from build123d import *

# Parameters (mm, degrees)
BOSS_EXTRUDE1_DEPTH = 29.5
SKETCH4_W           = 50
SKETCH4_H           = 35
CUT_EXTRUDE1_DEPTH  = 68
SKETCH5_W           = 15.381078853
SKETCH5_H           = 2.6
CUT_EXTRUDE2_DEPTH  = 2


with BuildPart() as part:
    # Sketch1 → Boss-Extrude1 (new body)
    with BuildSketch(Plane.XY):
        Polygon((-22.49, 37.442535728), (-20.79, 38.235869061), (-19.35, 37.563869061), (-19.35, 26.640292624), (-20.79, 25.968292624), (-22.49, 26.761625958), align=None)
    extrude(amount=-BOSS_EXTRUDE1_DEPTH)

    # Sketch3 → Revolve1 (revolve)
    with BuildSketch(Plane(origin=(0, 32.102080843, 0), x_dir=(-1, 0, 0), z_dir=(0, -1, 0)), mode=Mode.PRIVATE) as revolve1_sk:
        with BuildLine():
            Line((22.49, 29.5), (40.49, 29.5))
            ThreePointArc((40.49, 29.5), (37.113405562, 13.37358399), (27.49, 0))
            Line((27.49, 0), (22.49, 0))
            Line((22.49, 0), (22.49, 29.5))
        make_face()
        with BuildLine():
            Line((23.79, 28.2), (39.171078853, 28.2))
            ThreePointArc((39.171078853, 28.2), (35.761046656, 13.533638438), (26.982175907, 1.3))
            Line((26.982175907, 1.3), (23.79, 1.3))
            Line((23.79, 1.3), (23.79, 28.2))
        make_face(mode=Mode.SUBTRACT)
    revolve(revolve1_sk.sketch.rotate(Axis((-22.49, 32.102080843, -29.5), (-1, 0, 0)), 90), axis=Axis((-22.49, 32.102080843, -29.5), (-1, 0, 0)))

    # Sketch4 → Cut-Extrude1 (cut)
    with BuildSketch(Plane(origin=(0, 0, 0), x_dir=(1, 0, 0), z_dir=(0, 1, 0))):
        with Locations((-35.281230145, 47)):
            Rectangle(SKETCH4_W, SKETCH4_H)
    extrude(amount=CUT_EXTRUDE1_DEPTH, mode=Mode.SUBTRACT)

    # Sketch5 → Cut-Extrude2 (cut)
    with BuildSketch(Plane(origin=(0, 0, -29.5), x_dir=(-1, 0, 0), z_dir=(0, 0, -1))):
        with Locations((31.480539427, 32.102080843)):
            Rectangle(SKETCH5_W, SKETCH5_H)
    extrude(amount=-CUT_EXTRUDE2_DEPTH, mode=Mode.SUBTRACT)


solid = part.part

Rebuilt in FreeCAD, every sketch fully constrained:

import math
import FreeCAD as App
import Part
import Sketcher
Q = App.Units.Quantity


def add_polygon(sketch, points):
    """Adds a closed chain of lines whose ends are joined by coincident constraints."""
    first, n = sketch.GeometryCount, len(points)
    for a, b in zip(points, points[1:] + points[:1]):
        sketch.addGeometry(Part.LineSegment(App.Vector(*a, 0), App.Vector(*b, 0)), False)
    for i in range(n):
        sketch.addConstraint(Sketcher.Constraint("Coincident", first + i, 2, first + (i + 1) % n, 1))

doc = App.newDocument("Part")
params = doc.addObject("Spreadsheet::Sheet", "Params")
for row, (alias, value) in enumerate([
    ("pad1_length", "29.5 mm"),
    ("sketch2_width", "18 mm"),
    ("sketch2_width2", "5 mm"),
    ("sketch2_height", "29.5 mm"),
    ("sketch2_height2", "26.9 mm"),
    ("revolution_angle", "360 deg"),
    ("sketch3_width", "50 mm"),
    ("sketch3_height", "35 mm"),
    ("pocket1_length", "68 mm"),
    ("sketch4_height", "2.6 mm"),
    ("pocket2_length", "2 mm"),
], start=1):
    params.set(f"A{row}", alias)
    params.set(f"B{row}", "=" + value)
    params.setAlias(f"B{row}", alias)

body = doc.addObject("PartDesign::Body", "Body")

# Sketch on XY plane
sketch1 = body.newObject("Sketcher::SketchObject", "Sketch")
sketch1.AttachmentSupport = (doc.getObject("XY_Plane"), [""])
sketch1.MapMode = "FlatFace"
add_polygon(sketch1, [(-20.8, 38.2), (-22.5, 37.4), (-22.5, 26.8), (-20.8, 26), (-19.4, 26.6), (-19.4, 37.6)])  # lines 0-5
sketch1.addConstraint([
    Sketcher.Constraint("Vertical", 1),
    Sketcher.Constraint("Vertical", 4),
    Sketcher.Constraint("Parallel", 0, 3),
    Sketcher.Constraint("Parallel", 2, 5),
    Sketcher.Constraint("Vertical", 2, 2, 5, 2),
    Sketcher.Constraint("Equal", 0, 2),
    Sketcher.Constraint("DistanceX", 1, 2, 2, 2, Q("1.7 mm")),
    Sketcher.Constraint("DistanceX", 0, 2, -1, 1, Q("22.49 mm")),
    Sketcher.Constraint("DistanceX", 3, 2, -1, 1, Q("19.35 mm")),
    Sketcher.Constraint("Distance", 0, Q("1.876 mm")),
    Sketcher.Constraint("DistanceY", 1, 2, 1, 1, Q("10.68091 mm")),
    Sketcher.Constraint("DistanceY", -1, 1, 4, 2, Q("37.563869 mm")),
])
pad1 = body.newObject("PartDesign::Pad", "Pad")
pad1.Profile = sketch1
pad1.setExpression("Length", "Params.pad1_length")
pad1.Reversed = True

# Sketch on XZ plane
sketch2 = body.newObject("Sketcher::SketchObject", "Sketch001")
sketch2.AttachmentSupport = (doc.getObject("XZ_Plane"), [""])
sketch2.MapMode = "FlatFace"
sketch2.AttachmentOffset = App.Placement(App.Vector(0, 0, -32.102081), App.Rotation())
sketch2.addGeometry([
    Part.LineSegment(App.Vector(-40.5, -29.5, 0), App.Vector(-22.5, -29.5, 0)),  # 0
    Part.LineSegment(App.Vector(-22.5, -29.5, 0), App.Vector(-22.5, 0, 0)),  # 1
    Part.LineSegment(App.Vector(-22.5, 0, 0), App.Vector(-27.5, 0, 0)),  # 2
    Part.ArcOfCircle(Part.Circle(App.Vector(-0.7, -29.4, 0), App.Vector(0, 0, 1), 39.8), math.radians(132), math.radians(180)),  # 3
    Part.LineSegment(App.Vector(-23.8, -28.2, 0), App.Vector(-39.2, -28.2, 0)),  # 4
    Part.ArcOfCircle(Part.Circle(App.Vector(-0.7, -29.4, 0), App.Vector(0, 0, 1), 38.5), math.radians(133), math.radians(178)),  # 5
    Part.LineSegment(App.Vector(-27, -1.3, 0), App.Vector(-23.8, -1.3, 0)),  # 6
    Part.LineSegment(App.Vector(-23.8, -1.3, 0), App.Vector(-23.8, -28.2, 0)),  # 7
], False)
sketch2.addGeometry(Part.LineSegment(App.Vector(-0.7, -29.5, 0), App.Vector(-40.5, -29.5, 0)), True)  # axis
sketch2.addConstraint([
    Sketcher.Constraint("Coincident", 0, 2, 1, 1),
    Sketcher.Constraint("Coincident", 1, 2, 2, 1),
    Sketcher.Constraint("Coincident", 2, 2, 3, 1),
    Sketcher.Constraint("Coincident", 3, 2, 0, 1),
    Sketcher.Constraint("Coincident", 4, 2, 5, 2),
    Sketcher.Constraint("Coincident", 5, 1, 6, 1),
    Sketcher.Constraint("Coincident", 6, 2, 7, 1),
    Sketcher.Constraint("Coincident", 7, 2, 4, 1),
    Sketcher.Constraint("Horizontal", 0),
    Sketcher.Constraint("Vertical", 1),
    Sketcher.Constraint("Horizontal", 2),
    Sketcher.Constraint("Horizontal", 4),
    Sketcher.Constraint("Horizontal", 6),
    Sketcher.Constraint("Vertical", 7),
    Sketcher.Constraint("Horizontal", 8),
    Sketcher.Constraint("Coincident", 5, 3, 3, 3),
    Sketcher.Constraint("Coincident", 8, 2, 3, 2),
    Sketcher.Constraint("PointOnObject", 1, 2, -1),
    Sketcher.Constraint("Vertical", 5, 3, 8, 1),
    Sketcher.Constraint("DistanceX", 0, 1, 0, 2, Q("18 mm")),
    Sketcher.Constraint("DistanceX", 2, 2, 2, 1, Q("5 mm")),
    Sketcher.Constraint("DistanceY", 1, 1, 1, 2, Q("29.5 mm")),
    Sketcher.Constraint("DistanceY", 7, 2, 7, 1, Q("26.9 mm")),
    Sketcher.Constraint("DistanceY", 4, 2, -1, 1, Q("28.2 mm")),
    Sketcher.Constraint("DistanceX", 6, 2, 1, 2, Q("1.3 mm")),
    Sketcher.Constraint("DistanceX", 0, 2, -1, 1, Q("22.49 mm")),
    Sketcher.Constraint("Radius", 3, Q("39.76617 mm")),
    Sketcher.Constraint("Radius", 5, Q("38.46617 mm")),
])
sketch2.setExpression("Constraints[19]", "Params.sketch2_width")
sketch2.setExpression("Constraints[20]", "Params.sketch2_width2")
sketch2.setExpression("Constraints[21]", "Params.sketch2_height")
sketch2.setExpression("Constraints[22]", "Params.sketch2_height2")
revolution = body.newObject("PartDesign::Revolution", "Revolution")
revolution.Profile = sketch2
revolution.ReferenceAxis = (sketch2, ["Axis0"])
revolution.setExpression("Angle", "Params.revolution_angle")

# Sketch on XZ plane
sketch3 = body.newObject("Sketcher::SketchObject", "Sketch002")
sketch3.AttachmentSupport = (doc.getObject("XZ_Plane"), [""])
sketch3.MapMode = "FlatFace"
add_polygon(sketch3, [(-60, -64), (-60, -30), (-10, -30), (-10, -64)])  # lines 0-3
sketch3.addConstraint([
    Sketcher.Constraint("Vertical", 0),
    Sketcher.Constraint("Horizontal", 1),
    Sketcher.Constraint("Vertical", 2),
    Sketcher.Constraint("Horizontal", 3),
    Sketcher.Constraint("DistanceX", 1, 1, 1, 2, Q("50 mm")),
    Sketcher.Constraint("DistanceY", 0, 1, 0, 2, Q("35 mm")),
    Sketcher.Constraint("DistanceY", 0, 2, -1, 1, Q("29.5 mm")),
    Sketcher.Constraint("DistanceX", 0, 2, -1, 1, Q("60.28123 mm")),
])
sketch3.setExpression("Constraints[8]", "Params.sketch3_width")
sketch3.setExpression("Constraints[9]", "Params.sketch3_height")
pocket1 = body.newObject("PartDesign::Pocket", "Pocket")
pocket1.Profile = sketch3
pocket1.setExpression("Length", "Params.pocket1_length")

# Sketch on XY plane
sketch4 = body.newObject("Sketcher::SketchObject", "Sketch003")
sketch4.AttachmentSupport = (doc.getObject("XY_Plane"), [""])
sketch4.MapMode = "FlatFace"
sketch4.AttachmentOffset = App.Placement(App.Vector(0, 0, -29.5), App.Rotation())
add_polygon(sketch4, [(-23.8, 33.4), (-23.8, 30.8), (-39.2, 30.8), (-39.2, 33.4)])  # lines 0-3
sketch4.addConstraint([
    Sketcher.Constraint("Vertical", 0),
    Sketcher.Constraint("Horizontal", 1),
    Sketcher.Constraint("Vertical", 2),
    Sketcher.Constraint("Horizontal", 3),
    Sketcher.Constraint("DistanceY", 0, 2, 0, 1, Q("2.6 mm")),
    Sketcher.Constraint("DistanceX", 0, 2, -1, 1, Q("23.79 mm")),
    Sketcher.Constraint("DistanceX", 1, 2, 1, 1, Q("15.381079 mm")),
    Sketcher.Constraint("DistanceY", -1, 1, 0, 2, Q("30.802081 mm")),
])
sketch4.setExpression("Constraints[8]", "Params.sketch4_height")
pocket2 = body.newObject("PartDesign::Pocket", "Pocket001")
pocket2.Profile = sketch4
pocket2.setExpression("Length", "Params.pocket2_length")
pocket2.Reversed = True

doc.recompute()
